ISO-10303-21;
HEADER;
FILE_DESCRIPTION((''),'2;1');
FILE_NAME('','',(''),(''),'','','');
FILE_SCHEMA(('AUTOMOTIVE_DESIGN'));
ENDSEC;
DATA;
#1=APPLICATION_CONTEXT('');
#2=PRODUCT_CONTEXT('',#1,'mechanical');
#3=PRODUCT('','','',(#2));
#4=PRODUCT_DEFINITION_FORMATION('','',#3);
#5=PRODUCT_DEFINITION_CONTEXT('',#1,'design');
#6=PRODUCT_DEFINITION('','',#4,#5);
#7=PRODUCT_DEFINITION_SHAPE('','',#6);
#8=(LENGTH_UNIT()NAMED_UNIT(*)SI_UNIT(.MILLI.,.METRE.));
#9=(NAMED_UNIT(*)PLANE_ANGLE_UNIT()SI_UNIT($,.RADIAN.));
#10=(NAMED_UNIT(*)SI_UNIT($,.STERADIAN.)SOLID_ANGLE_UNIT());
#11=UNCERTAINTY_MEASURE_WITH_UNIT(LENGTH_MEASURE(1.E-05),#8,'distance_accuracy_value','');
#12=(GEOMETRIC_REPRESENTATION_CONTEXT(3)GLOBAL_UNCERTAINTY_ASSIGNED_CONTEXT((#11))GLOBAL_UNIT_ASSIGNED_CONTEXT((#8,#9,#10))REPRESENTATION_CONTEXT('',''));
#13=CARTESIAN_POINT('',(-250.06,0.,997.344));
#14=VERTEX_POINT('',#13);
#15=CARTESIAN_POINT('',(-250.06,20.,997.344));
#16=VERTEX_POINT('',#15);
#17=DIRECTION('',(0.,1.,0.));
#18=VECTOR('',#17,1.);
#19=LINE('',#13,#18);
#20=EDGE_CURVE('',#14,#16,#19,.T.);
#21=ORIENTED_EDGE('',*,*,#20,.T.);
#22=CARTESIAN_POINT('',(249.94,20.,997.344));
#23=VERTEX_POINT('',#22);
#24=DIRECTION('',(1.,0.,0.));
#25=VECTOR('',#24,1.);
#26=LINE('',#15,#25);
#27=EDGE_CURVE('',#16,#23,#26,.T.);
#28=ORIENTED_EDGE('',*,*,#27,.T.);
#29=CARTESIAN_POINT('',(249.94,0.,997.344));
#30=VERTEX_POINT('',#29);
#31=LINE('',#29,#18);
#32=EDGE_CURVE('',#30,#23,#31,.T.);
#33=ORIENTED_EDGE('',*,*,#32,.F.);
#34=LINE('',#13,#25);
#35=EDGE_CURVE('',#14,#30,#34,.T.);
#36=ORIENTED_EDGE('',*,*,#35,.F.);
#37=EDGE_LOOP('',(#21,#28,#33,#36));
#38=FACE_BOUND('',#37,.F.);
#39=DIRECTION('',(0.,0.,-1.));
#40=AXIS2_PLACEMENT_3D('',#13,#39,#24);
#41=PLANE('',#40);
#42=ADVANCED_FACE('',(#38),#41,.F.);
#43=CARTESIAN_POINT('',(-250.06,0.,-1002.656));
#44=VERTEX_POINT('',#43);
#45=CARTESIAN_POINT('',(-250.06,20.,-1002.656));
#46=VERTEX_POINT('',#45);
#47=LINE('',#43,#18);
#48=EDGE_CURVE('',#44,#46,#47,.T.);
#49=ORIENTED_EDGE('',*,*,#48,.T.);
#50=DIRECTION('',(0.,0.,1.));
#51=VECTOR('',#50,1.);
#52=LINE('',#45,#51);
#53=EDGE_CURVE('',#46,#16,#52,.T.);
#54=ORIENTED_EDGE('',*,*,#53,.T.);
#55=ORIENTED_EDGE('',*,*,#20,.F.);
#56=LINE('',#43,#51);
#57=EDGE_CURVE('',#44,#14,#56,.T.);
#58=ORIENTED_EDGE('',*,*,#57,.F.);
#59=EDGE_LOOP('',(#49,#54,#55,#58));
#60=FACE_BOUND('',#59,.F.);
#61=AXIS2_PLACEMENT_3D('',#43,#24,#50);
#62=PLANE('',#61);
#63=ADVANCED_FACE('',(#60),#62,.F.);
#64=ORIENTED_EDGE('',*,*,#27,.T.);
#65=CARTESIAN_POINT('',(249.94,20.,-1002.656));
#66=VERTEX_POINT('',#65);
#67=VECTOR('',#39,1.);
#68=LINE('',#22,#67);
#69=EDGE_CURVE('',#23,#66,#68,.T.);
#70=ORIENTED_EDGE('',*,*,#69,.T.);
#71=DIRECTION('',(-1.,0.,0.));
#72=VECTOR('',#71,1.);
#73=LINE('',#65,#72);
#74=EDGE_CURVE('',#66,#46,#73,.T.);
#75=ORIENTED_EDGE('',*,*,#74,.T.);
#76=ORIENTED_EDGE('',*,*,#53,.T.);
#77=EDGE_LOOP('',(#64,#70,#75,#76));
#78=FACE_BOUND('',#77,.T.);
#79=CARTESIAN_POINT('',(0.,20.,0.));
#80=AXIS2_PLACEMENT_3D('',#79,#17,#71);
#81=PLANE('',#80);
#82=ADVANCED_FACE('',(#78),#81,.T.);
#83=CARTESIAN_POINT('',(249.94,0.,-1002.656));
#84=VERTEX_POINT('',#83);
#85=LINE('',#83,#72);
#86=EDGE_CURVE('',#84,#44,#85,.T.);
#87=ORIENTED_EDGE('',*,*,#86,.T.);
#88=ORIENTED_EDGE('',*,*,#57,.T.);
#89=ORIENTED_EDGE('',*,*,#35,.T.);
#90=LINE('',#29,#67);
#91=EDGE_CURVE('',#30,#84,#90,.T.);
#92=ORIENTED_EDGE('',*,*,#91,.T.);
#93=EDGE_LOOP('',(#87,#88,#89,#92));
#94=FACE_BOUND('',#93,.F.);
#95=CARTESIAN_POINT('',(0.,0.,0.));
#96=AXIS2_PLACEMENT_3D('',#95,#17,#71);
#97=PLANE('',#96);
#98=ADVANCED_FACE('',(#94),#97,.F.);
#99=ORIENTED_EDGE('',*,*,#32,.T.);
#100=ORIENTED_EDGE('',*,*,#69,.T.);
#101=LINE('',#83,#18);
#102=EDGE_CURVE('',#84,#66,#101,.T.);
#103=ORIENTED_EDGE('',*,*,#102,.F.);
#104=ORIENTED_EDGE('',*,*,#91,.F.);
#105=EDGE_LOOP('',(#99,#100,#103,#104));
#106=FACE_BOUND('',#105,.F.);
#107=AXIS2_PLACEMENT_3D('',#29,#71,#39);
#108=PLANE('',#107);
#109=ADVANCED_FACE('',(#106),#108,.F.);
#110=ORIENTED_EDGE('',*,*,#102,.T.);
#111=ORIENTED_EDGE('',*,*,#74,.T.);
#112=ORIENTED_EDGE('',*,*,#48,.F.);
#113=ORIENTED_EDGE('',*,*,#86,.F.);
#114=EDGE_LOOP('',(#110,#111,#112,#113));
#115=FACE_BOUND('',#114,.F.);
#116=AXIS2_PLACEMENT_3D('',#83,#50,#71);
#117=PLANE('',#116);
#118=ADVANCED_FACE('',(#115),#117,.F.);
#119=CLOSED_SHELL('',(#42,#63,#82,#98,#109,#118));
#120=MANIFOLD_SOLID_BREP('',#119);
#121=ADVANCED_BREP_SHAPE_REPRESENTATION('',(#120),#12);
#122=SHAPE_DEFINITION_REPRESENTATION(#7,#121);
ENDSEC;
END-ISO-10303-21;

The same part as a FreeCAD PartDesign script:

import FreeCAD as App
import Part
import Sketcher

V = App.Vector
Q = App.Units.Quantity

doc = App.newDocument("Part")
params = doc.addObject("Spreadsheet::Sheet", "Params")
for row, (alias, value) in enumerate([
    ("sketch1_width", "500 mm"),
    ("sketch1_height", "2000 mm"),
    ("pad1_length", "20 mm"),
], start=1):
    params.set(f"A{row}", alias)
    params.set(f"B{row}", "=" + value)
    params.setAlias(f"B{row}", alias)

body = doc.addObject("PartDesign::Body", "Body")

# Sketch on XZ plane
sketch1 = body.newObject("Sketcher::SketchObject", "Sketch")
sketch1.AttachmentSupport = (doc.getObject("XZ_Plane"), [""])
sketch1.MapMode = "FlatFace"
sketch1.addGeometry(Part.LineSegment(V(-250, -1003, 0), V(-250, 997, 0)), False)
sketch1.addGeometry(Part.LineSegment(V(-250, 997, 0), V(250, 997, 0)), False)
sketch1.addGeometry(Part.LineSegment(V(250, 997, 0), V(250, -1003, 0)), False)
sketch1.addGeometry(Part.LineSegment(V(250, -1003, 0), V(-250, -1003, 0)), False)
sketch1.addConstraint(Sketcher.Constraint("Coincident", 0, 2, 1, 1))
sketch1.addConstraint(Sketcher.Constraint("Coincident", 1, 2, 2, 1))
sketch1.addConstraint(Sketcher.Constraint("Coincident", 2, 2, 3, 1))
sketch1.addConstraint(Sketcher.Constraint("Coincident", 3, 2, 0, 1))
sketch1.addConstraint(Sketcher.Constraint("Vertical", 0))
sketch1.addConstraint(Sketcher.Constraint("Horizontal", 1))
sketch1.addConstraint(Sketcher.Constraint("Vertical", 2))
sketch1.addConstraint(Sketcher.Constraint("Horizontal", 3))
sketch1.addConstraint(Sketcher.Constraint("DistanceX", 1, 1, 1, 2, Q("500 mm")))
sketch1.addConstraint(Sketcher.Constraint("DistanceY", 0, 1, 0, 2, Q("2000 mm")))
sketch1.addConstraint(Sketcher.Constraint("DistanceX", 0, 2, -1, 1, Q("250.06 mm")))
sketch1.addConstraint(Sketcher.Constraint("DistanceY", -1, 1, 0, 2, Q("997.344 mm")))
sketch1.setExpression("Constraints[8]", "Params.sketch1_width")
sketch1.setExpression("Constraints[9]", "Params.sketch1_height")
pad1 = body.newObject("PartDesign::Pad", "Pad")
pad1.Profile = sketch1
pad1.setExpression("Length", "Params.pad1_length")
pad1.Reversed = True

doc.recompute()
